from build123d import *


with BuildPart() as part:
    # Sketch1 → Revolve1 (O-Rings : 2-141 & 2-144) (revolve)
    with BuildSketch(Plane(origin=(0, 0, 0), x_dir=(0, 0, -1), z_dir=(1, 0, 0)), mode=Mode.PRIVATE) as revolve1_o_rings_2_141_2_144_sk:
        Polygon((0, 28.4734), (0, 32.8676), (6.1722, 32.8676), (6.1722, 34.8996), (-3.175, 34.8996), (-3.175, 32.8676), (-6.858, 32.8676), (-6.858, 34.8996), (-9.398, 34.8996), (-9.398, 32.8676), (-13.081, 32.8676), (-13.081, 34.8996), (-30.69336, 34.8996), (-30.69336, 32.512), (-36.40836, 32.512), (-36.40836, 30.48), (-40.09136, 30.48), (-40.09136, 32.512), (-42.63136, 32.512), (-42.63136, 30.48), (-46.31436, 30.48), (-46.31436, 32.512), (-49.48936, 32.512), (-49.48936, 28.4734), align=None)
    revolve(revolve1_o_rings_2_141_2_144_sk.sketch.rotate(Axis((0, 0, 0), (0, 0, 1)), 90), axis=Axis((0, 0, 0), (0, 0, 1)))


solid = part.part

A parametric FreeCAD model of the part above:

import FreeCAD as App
import Part
import Sketcher

V = App.Vector
Q = App.Units.Quantity

doc = App.newDocument("Part")
body = doc.addObject("PartDesign::Body", "Body")

sketch1 = body.newObject("Sketcher::SketchObject", "Sketch")
sketch1.AttachmentSupport = (doc.getObject("YZ_Plane"), [""])
sketch1.MapMode = "FlatFace"
sketch1.addGeometry([
    Part.LineSegment(V(28.5, 0, 0), V(32.9, 0, 0)),
    Part.LineSegment(V(32.9, 0, 0), V(32.9, -6.2, 0)),
    Part.LineSegment(V(32.9, -6.2, 0), V(34.9, -6.2, 0)),
    Part.LineSegment(V(34.9, -6.2, 0), V(34.9, 3.2, 0)),
    Part.LineSegment(V(34.9, 3.2, 0), V(32.9, 3.2, 0)),
    Part.LineSegment(V(32.9, 3.2, 0), V(32.9, 6.9, 0)),
    Part.LineSegment(V(32.9, 6.9, 0), V(34.9, 6.9, 0)),
    Part.LineSegment(V(34.9, 6.9, 0), V(34.9, 9.4, 0)),
    Part.LineSegment(V(34.9, 9.4, 0), V(32.9, 9.4, 0)),
    Part.LineSegment(V(32.9, 9.4, 0), V(32.9, 13.1, 0)),
    Part.LineSegment(V(32.9, 13.1, 0), V(34.9, 13.1, 0)),
    Part.LineSegment(V(34.9, 13.1, 0), V(34.9, 30.7, 0)),
    Part.LineSegment(V(34.9, 30.7, 0), V(32.5, 30.7, 0)),
    Part.LineSegment(V(32.5, 30.7, 0), V(32.5, 36.4, 0)),
    Part.LineSegment(V(32.5, 36.4, 0), V(30.5, 36.4, 0)),
    Part.LineSegment(V(30.5, 36.4, 0), V(30.5, 40.1, 0)),
    Part.LineSegment(V(30.5, 40.1, 0), V(32.5, 40.1, 0)),
    Part.LineSegment(V(32.5, 40.1, 0), V(32.5, 42.6, 0)),
    Part.LineSegment(V(32.5, 42.6, 0), V(30.5, 42.6, 0)),
    Part.LineSegment(V(30.5, 42.6, 0), V(30.5, 46.3, 0)),
    Part.LineSegment(V(30.5, 46.3, 0), V(32.5, 46.3, 0)),
    Part.LineSegment(V(32.5, 46.3, 0), V(32.5, 49.5, 0)),
    Part.LineSegment(V(32.5, 49.5, 0), V(28.5, 49.5, 0)),
    Part.LineSegment(V(28.5, 49.5, 0), V(28.5, 0, 0)),
], False)
sketch1.addConstraint([
    Sketcher.Constraint("Coincident", 0, 2, 1, 1),
    Sketcher.Constraint("Coincident", 1, 2, 2, 1),
    Sketcher.Constraint("Coincident", 2, 2, 3, 1),
    Sketcher.Constraint("Coincident", 3, 2, 4, 1),
    Sketcher.Constraint("Coincident", 4, 2, 5, 1),
    Sketcher.Constraint("Coincident", 5, 2, 6, 1),
    Sketcher.Constraint("Coincident", 6, 2, 7, 1),
    Sketcher.Constraint("Coincident", 7, 2, 8, 1),
    Sketcher.Constraint("Coincident", 8, 2, 9, 1),
    Sketcher.Constraint("Coincident", 9, 2, 10, 1),
    Sketcher.Constraint("Coincident", 10, 2, 11, 1),
    Sketcher.Constraint("Coincident", 11, 2, 12, 1),
    Sketcher.Constraint("Coincident", 12, 2, 13, 1),
    Sketcher.Constraint("Coincident", 13, 2, 14, 1),
    Sketcher.Constraint("Coincident", 14, 2, 15, 1),
    Sketcher.Constraint("Coincident", 15, 2, 16, 1),
    Sketcher.Constraint("Coincident", 16, 2, 17, 1),
    Sketcher.Constraint("Coincident", 17, 2, 18, 1),
    Sketcher.Constraint("Coincident", 18, 2, 19, 1),
    Sketcher.Constraint("Coincident", 19, 2, 20, 1),
    Sketcher.Constraint("Coincident", 20, 2, 21, 1),
    Sketcher.Constraint("Coincident", 21, 2, 22, 1),
    Sketcher.Constraint("Coincident", 22, 2, 23, 1),
    Sketcher.Constraint("Coincident", 23, 2, 0, 1),
    Sketcher.Constraint("Horizontal", 0),
    Sketcher.Constraint("Vertical", 1),
    Sketcher.Constraint("Horizontal", 2),
    Sketcher.Constraint("Vertical", 3),
    Sketcher.Constraint("Horizontal", 4),
    Sketcher.Constraint("Vertical", 5),
    Sketcher.Constraint("Horizontal", 6),
    Sketcher.Constraint("Vertical", 7),
    Sketcher.Constraint("Horizontal", 8),
    Sketcher.Constraint("Vertical", 9),
    Sketcher.Constraint("Horizontal", 10),
    Sketcher.Constraint("Vertical", 11),
    Sketcher.Constraint("Horizontal", 12),
    Sketcher.Constraint("Vertical", 13),
    Sketcher.Constraint("Horizontal", 14),
    Sketcher.Constraint("Vertical", 15),
    Sketcher.Constraint("Horizontal", 16),
    Sketcher.Constraint("Vertical", 17),
    Sketcher.Constraint("Horizontal", 18),
    Sketcher.Constraint("Vertical", 19),
    Sketcher.Constraint("Horizontal", 20),
    Sketcher.Constraint("Vertical", 21),
    Sketcher.Constraint("Horizontal", 22),
    Sketcher.Constraint("Vertical", 23),
    Sketcher.Constraint("PointOnObject", 0, 2, -1),
    Sketcher.Constraint("Vertical", 1, 2, 4, 2),
    Sketcher.Constraint("Vertical", 3, 2, 6, 2),
    Sketcher.Constraint("Vertical", 5, 2, 8, 2),
    Sketcher.Constraint("Vertical", 7, 2, 10, 2),
    Sketcher.Constraint("Vertical", 13, 2, 16, 2),
    Sketcher.Constraint("Vertical", 15, 2, 18, 2),
    Sketcher.Constraint("Vertical", 17, 2, 20, 2),
    Sketcher.Constraint("Equal", 10, 14),
    Sketcher.Constraint("Equal", 5, 9),
    Sketcher.Constraint("Equal", 9, 15),
    Sketcher.Constraint("Equal", 7, 17),
    Sketcher.Constraint("Equal", 15, 19),
    Sketcher.Constraint("DistanceY", 7, 1, 7, 2, Q("0.1 in")),
    Sketcher.Constraint("DistanceX", 2, 1, 2, 2, Q("0.08 in")),
    Sketcher.Constraint("DistanceX", -1, 1, 14, 2, Q("1.2 in")),
    Sketcher.Constraint("DistanceX", 0, 1, 0, 2, Q("0.173 in")),
    Sketcher.Constraint("DistanceX", 12, 2, 12, 1, Q("0.094 in")),
    Sketcher.Constraint("DistanceY", 1, 2, 1, 1, Q("0.243 in")),
    Sketcher.Constraint("DistanceY", 3, 1, 3, 2, Q("0.368 in")),
    Sketcher.Constraint("DistanceY", 5, 1, 5, 2, Q("0.145 in")),
    Sketcher.Constraint("DistanceY", 13, 1, 13, 2, Q("0.225 in")),
    Sketcher.Constraint("DistanceY", 21, 1, 21, 2, Q("0.125 in")),
    Sketcher.Constraint("DistanceY", 11, 1, 11, 2, Q("0.6934 in")),
])
revolution = body.newObject("PartDesign::Revolution", "Revolution")
revolution.Profile = sketch1
revolution.ReferenceAxis = (sketch1, ["V_Axis"])
revolution.Angle = 360

doc.recompute()
